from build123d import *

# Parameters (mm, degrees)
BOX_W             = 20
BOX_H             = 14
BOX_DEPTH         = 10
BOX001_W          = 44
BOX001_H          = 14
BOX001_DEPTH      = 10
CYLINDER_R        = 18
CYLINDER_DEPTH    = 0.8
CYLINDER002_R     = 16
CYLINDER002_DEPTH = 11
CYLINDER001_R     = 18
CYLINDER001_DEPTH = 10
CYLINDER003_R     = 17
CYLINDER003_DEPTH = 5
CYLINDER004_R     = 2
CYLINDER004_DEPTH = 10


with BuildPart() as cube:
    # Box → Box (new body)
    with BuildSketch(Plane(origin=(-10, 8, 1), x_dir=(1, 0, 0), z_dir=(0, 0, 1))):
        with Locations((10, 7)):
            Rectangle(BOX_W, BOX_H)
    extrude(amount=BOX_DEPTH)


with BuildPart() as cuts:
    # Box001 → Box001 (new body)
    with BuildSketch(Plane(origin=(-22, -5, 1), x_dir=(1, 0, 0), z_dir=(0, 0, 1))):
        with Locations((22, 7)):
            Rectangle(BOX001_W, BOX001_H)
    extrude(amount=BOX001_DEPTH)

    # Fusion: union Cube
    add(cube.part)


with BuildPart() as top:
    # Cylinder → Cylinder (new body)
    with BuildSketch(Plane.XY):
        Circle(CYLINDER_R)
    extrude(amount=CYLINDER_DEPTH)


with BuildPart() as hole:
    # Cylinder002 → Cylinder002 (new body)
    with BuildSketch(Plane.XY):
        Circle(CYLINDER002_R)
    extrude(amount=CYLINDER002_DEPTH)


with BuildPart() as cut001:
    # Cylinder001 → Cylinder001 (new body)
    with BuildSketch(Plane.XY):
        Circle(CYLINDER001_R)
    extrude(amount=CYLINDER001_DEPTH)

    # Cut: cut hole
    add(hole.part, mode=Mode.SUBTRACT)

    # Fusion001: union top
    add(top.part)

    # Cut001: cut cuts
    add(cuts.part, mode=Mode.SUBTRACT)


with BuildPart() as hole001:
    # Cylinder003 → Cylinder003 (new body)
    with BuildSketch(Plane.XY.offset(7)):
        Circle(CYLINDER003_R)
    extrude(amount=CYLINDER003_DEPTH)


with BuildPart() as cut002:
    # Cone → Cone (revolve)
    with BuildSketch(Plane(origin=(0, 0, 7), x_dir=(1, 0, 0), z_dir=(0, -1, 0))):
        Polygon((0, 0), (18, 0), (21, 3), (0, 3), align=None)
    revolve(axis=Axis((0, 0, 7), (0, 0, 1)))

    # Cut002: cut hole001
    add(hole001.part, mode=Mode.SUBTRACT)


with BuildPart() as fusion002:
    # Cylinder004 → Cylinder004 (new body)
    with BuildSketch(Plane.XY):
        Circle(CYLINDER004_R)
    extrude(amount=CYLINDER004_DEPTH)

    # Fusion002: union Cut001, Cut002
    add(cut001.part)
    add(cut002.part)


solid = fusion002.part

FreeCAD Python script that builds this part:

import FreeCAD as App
import Part
import Sketcher

V = App.Vector

doc = App.newDocument("Part")
body = doc.addObject("PartDesign::Body", "Body")

# Sketch on XY plane
sketch1 = body.newObject("Sketcher::SketchObject", "Sketch")
sketch1.AttachmentSupport = (doc.getObject("XY_Plane"), [""])
sketch1.MapMode = "FlatFace"
sketch1.AttachmentOffset = App.Placement(V(0, 0, 1), App.Rotation())
sketch1.addGeometry(Part.LineSegment(V(-10, 22, 0), V(-10, 8, 0)), False)
sketch1.addGeometry(Part.LineSegment(V(-10, 8, 0), V(10, 8, 0)), False)
sketch1.addGeometry(Part.LineSegment(V(10, 8, 0), V(10, 22, 0)), False)
sketch1.addGeometry(Part.LineSegment(V(10, 22, 0), V(-10, 22, 0)), False)
sketch1.addConstraint(Sketcher.Constraint("Coincident", 0, 2, 1, 1))
sketch1.addConstraint(Sketcher.Constraint("Coincident", 1, 2, 2, 1))
sketch1.addConstraint(Sketcher.Constraint("Coincident", 2, 2, 3, 1))
sketch1.addConstraint(Sketcher.Constraint("Coincident", 3, 2, 0, 1))
sketch1.addConstraint(Sketcher.Constraint("Vertical", 0))
sketch1.addConstraint(Sketcher.Constraint("Horizontal", 1))
sketch1.addConstraint(Sketcher.Constraint("Vertical", 2))
sketch1.addConstraint(Sketcher.Constraint("Horizontal", 3))
sketch1.addConstraint(Sketcher.Constraint("DistanceX", 1, 1, 1, 2, 20.0))
sketch1.addConstraint(Sketcher.Constraint("DistanceY", 0, 2, 0, 1, 14.0))
sketch1.addConstraint(Sketcher.Constraint("DistanceX", 0, 2, -1, 1, 10.0))
sketch1.addConstraint(Sketcher.Constraint("DistanceY", -1, 1, 0, 2, 8.0))
pad1 = body.newObject("PartDesign::Pad", "Pad")
pad1.Profile = sketch1
pad1.Length = 10
body2 = doc.addObject("PartDesign::Body", "Body001")

# Sketch on XY plane
sketch2 = body2.newObject("Sketcher::SketchObject", "Sketch001")
sketch2.AttachmentSupport = (doc.getObject("XY_Plane001"), [""])
sketch2.MapMode = "FlatFace"
sketch2.AttachmentOffset = App.Placement(V(0, 0, 1), App.Rotation())
sketch2.addGeometry(Part.LineSegment(V(-22, 9, 0), V(-22, -5, 0)), False)
sketch2.addGeometry(Part.LineSegment(V(-22, -5, 0), V(22, -5, 0)), False)
sketch2.addGeometry(Part.LineSegment(V(22, -5, 0), V(22, 9, 0)), False)
sketch2.addGeometry(Part.LineSegment(V(22, 9, 0), V(-22, 9, 0)), False)
sketch2.addConstraint(Sketcher.Constraint("Coincident", 0, 2, 1, 1))
sketch2.addConstraint(Sketcher.Constraint("Coincident", 1, 2, 2, 1))
sketch2.addConstraint(Sketcher.Constraint("Coincident", 2, 2, 3, 1))
sketch2.addConstraint(Sketcher.Constraint("Coincident", 3, 2, 0, 1))
sketch2.addConstraint(Sketcher.Constraint("Vertical", 0))
sketch2.addConstraint(Sketcher.Constraint("Horizontal", 1))
sketch2.addConstraint(Sketcher.Constraint("Vertical", 2))
sketch2.addConstraint(Sketcher.Constraint("Horizontal", 3))
sketch2.addConstraint(Sketcher.Constraint("DistanceX", 1, 1, 1, 2, 44.0))
sketch2.addConstraint(Sketcher.Constraint("DistanceY", 0, 2, 0, 1, 14.0))
sketch2.addConstraint(Sketcher.Constraint("DistanceX", 0, 2, -1, 1, 22.0))
sketch2.addConstraint(Sketcher.Constraint("DistanceY", 0, 2, -1, 1, 5.0))
pad2 = body2.newObject("PartDesign::Pad", "Pad001")
pad2.Profile = sketch2
pad2.Length = 10
doc.recompute()

boolean = body2.newObject("PartDesign::Boolean", "Boolean")
boolean.Type = "Fuse"
boolean.addObjects([body])
body3 = doc.addObject("PartDesign::Body", "Body002")

# Sketch on XY plane
sketch3 = body3.newObject("Sketcher::SketchObject", "Sketch002")
sketch3.AttachmentSupport = (doc.getObject("XY_Plane002"), [""])
sketch3.MapMode = "FlatFace"
sketch3.addGeometry(Part.Circle(V(0, 0, 0), V(0, 0, 1), 18), False)
sketch3.addConstraint(Sketcher.Constraint("Coincident", 0, 3, -1, 1))
sketch3.addConstraint(Sketcher.Constraint("Diameter", 0, 36.0))
pad3 = body3.newObject("PartDesign::Pad", "Pad002")
pad3.Profile = sketch3
pad3.Length = 0.8
body4 = doc.addObject("PartDesign::Body", "Body003")

# Sketch on XY plane
sketch4 = body4.newObject("Sketcher::SketchObject", "Sketch003")
sketch4.AttachmentSupport = (doc.getObject("XY_Plane003"), [""])
sketch4.MapMode = "FlatFace"
sketch4.addGeometry(Part.Circle(V(0, 0, 0), V(0, 0, 1), 16), False)
sketch4.addConstraint(Sketcher.Constraint("Coincident", 0, 3, -1, 1))
sketch4.addConstraint(Sketcher.Constraint("Diameter", 0, 32.0))
pad4 = body4.newObject("PartDesign::Pad", "Pad003")
pad4.Profile = sketch4
pad4.Length = 11
body5 = doc.addObject("PartDesign::Body", "Body004")

# Sketch on XY plane
sketch5 = body5.newObject("Sketcher::SketchObject", "Sketch004")
sketch5.AttachmentSupport = (doc.getObject("XY_Plane004"), [""])
sketch5.MapMode = "FlatFace"
sketch5.addGeometry(Part.Circle(V(0, 0, 0), V(0, 0, 1), 18), False)
sketch5.addConstraint(Sketcher.Constraint("Coincident", 0, 3, -1, 1))
sketch5.addConstraint(Sketcher.Constraint("Diameter", 0, 36.0))
pad5 = body5.newObject("PartDesign::Pad", "Pad004")
pad5.Profile = sketch5
pad5.Length = 10
doc.recompute()

boolean2 = body5.newObject("PartDesign::Boolean", "Boolean001")
boolean2.Type = "Cut"
boolean2.addObjects([body4])
doc.recompute()

boolean3 = body5.newObject("PartDesign::Boolean", "Boolean002")
boolean3.Type = "Fuse"
boolean3.addObjects([body3])
doc.recompute()

boolean4 = body5.newObject("PartDesign::Boolean", "Boolean003")
boolean4.Type = "Cut"
boolean4.addObjects([body2])
body6 = doc.addObject("PartDesign::Body", "Body005")

# Sketch on XY plane
sketch6 = body6.newObject("Sketcher::SketchObject", "Sketch005")
sketch6.AttachmentSupport = (doc.getObject("XY_Plane005"), [""])
sketch6.MapMode = "FlatFace"
sketch6.AttachmentOffset = App.Placement(V(0, 0, 7), App.Rotation())
sketch6.addGeometry(Part.Circle(V(0, 0, 0), V(0, 0, 1), 17), False)
sketch6.addConstraint(Sketcher.Constraint("Coincident", 0, 3, -1, 1))
sketch6.addConstraint(Sketcher.Constraint("Diameter", 0, 34.0))
pad6 = body6.newObject("PartDesign::Pad", "Pad005")
pad6.Profile = sketch6
pad6.Length = 5
body7 = doc.addObject("PartDesign::Body", "Body006")

# Sketch on XZ plane
sketch7 = body7.newObject("Sketcher::SketchObject", "Sketch006")
sketch7.AttachmentSupport = (doc.getObject("XZ_Plane006"), [""])
sketch7.MapMode = "FlatFace"
sketch7.addGeometry(Part.LineSegment(V(0, 7, 0), V(18, 7, 0)), False)
sketch7.addGeometry(Part.LineSegment(V(18, 7, 0), V(21, 10, 0)), False)
sketch7.addGeometry(Part.LineSegment(V(21, 10, 0), V(0, 10, 0)), False)
sketch7.addGeometry(Part.LineSegment(V(0, 10, 0), V(0, 7, 0)), False)
sketch7.addConstraint(Sketcher.Constraint("Coincident", 0, 2, 1, 1))
sketch7.addConstraint(Sketcher.Constraint("Coincident", 1, 2, 2, 1))
sketch7.addConstraint(Sketcher.Constraint("Coincident", 2, 2, 3, 1))
sketch7.addConstraint(Sketcher.Constraint("Coincident", 3, 2, 0, 1))
sketch7.addConstraint(Sketcher.Constraint("Horizontal", 0))
sketch7.addConstraint(Sketcher.Constraint("Horizontal", 2))
sketch7.addConstraint(Sketcher.Constraint("Vertical", 3))
sketch7.addConstraint(Sketcher.Constraint("PointOnObject", 2, 2, -2))
sketch7.addConstraint(Sketcher.Constraint("DistanceX", 0, 1, 0, 2, 18.0))
sketch7.addConstraint(Sketcher.Constraint("DistanceX", 2, 2, 2, 1, 21.0))
sketch7.addConstraint(Sketcher.Constraint("DistanceY", 3, 2, 3, 1, 3.0))
sketch7.addConstraint(Sketcher.Constraint("DistanceY", -1, 1, 0, 2, 7.0))
revolution = body7.newObject("PartDesign::Revolution", "Revolution")
revolution.Profile = sketch7
revolution.ReferenceAxis = (sketch7, ["V_Axis"])
revolution.Angle = 360
doc.recompute()

boolean5 = body7.newObject("PartDesign::Boolean", "Boolean004")
boolean5.Type = "Cut"
boolean5.addObjects([body6])
body8 = doc.addObject("PartDesign::Body", "Body007")

# Sketch on XY plane
sketch8 = body8.newObject("Sketcher::SketchObject", "Sketch007")
sketch8.AttachmentSupport = (doc.getObject("XY_Plane007"), [""])
sketch8.MapMode = "FlatFace"
sketch8.addGeometry(Part.Circle(V(0, 0, 0), V(0, 0, 1), 2), False)
sketch8.addConstraint(Sketcher.Constraint("Coincident", 0, 3, -1, 1))
sketch8.addConstraint(Sketcher.Constraint("Diameter", 0, 4.0))
pad7 = body8.newObject("PartDesign::Pad", "Pad006")
pad7.Profile = sketch8
pad7.Length = 10
doc.recompute()

boolean6 = body8.newObject("PartDesign::Boolean", "Boolean005")
boolean6.Type = "Fuse"
boolean6.addObjects([body5])
doc.recompute()

boolean7 = body8.newObject("PartDesign::Boolean", "Boolean006")
boolean7.Type = "Fuse"
boolean7.addObjects([body7])

doc.recompute()
